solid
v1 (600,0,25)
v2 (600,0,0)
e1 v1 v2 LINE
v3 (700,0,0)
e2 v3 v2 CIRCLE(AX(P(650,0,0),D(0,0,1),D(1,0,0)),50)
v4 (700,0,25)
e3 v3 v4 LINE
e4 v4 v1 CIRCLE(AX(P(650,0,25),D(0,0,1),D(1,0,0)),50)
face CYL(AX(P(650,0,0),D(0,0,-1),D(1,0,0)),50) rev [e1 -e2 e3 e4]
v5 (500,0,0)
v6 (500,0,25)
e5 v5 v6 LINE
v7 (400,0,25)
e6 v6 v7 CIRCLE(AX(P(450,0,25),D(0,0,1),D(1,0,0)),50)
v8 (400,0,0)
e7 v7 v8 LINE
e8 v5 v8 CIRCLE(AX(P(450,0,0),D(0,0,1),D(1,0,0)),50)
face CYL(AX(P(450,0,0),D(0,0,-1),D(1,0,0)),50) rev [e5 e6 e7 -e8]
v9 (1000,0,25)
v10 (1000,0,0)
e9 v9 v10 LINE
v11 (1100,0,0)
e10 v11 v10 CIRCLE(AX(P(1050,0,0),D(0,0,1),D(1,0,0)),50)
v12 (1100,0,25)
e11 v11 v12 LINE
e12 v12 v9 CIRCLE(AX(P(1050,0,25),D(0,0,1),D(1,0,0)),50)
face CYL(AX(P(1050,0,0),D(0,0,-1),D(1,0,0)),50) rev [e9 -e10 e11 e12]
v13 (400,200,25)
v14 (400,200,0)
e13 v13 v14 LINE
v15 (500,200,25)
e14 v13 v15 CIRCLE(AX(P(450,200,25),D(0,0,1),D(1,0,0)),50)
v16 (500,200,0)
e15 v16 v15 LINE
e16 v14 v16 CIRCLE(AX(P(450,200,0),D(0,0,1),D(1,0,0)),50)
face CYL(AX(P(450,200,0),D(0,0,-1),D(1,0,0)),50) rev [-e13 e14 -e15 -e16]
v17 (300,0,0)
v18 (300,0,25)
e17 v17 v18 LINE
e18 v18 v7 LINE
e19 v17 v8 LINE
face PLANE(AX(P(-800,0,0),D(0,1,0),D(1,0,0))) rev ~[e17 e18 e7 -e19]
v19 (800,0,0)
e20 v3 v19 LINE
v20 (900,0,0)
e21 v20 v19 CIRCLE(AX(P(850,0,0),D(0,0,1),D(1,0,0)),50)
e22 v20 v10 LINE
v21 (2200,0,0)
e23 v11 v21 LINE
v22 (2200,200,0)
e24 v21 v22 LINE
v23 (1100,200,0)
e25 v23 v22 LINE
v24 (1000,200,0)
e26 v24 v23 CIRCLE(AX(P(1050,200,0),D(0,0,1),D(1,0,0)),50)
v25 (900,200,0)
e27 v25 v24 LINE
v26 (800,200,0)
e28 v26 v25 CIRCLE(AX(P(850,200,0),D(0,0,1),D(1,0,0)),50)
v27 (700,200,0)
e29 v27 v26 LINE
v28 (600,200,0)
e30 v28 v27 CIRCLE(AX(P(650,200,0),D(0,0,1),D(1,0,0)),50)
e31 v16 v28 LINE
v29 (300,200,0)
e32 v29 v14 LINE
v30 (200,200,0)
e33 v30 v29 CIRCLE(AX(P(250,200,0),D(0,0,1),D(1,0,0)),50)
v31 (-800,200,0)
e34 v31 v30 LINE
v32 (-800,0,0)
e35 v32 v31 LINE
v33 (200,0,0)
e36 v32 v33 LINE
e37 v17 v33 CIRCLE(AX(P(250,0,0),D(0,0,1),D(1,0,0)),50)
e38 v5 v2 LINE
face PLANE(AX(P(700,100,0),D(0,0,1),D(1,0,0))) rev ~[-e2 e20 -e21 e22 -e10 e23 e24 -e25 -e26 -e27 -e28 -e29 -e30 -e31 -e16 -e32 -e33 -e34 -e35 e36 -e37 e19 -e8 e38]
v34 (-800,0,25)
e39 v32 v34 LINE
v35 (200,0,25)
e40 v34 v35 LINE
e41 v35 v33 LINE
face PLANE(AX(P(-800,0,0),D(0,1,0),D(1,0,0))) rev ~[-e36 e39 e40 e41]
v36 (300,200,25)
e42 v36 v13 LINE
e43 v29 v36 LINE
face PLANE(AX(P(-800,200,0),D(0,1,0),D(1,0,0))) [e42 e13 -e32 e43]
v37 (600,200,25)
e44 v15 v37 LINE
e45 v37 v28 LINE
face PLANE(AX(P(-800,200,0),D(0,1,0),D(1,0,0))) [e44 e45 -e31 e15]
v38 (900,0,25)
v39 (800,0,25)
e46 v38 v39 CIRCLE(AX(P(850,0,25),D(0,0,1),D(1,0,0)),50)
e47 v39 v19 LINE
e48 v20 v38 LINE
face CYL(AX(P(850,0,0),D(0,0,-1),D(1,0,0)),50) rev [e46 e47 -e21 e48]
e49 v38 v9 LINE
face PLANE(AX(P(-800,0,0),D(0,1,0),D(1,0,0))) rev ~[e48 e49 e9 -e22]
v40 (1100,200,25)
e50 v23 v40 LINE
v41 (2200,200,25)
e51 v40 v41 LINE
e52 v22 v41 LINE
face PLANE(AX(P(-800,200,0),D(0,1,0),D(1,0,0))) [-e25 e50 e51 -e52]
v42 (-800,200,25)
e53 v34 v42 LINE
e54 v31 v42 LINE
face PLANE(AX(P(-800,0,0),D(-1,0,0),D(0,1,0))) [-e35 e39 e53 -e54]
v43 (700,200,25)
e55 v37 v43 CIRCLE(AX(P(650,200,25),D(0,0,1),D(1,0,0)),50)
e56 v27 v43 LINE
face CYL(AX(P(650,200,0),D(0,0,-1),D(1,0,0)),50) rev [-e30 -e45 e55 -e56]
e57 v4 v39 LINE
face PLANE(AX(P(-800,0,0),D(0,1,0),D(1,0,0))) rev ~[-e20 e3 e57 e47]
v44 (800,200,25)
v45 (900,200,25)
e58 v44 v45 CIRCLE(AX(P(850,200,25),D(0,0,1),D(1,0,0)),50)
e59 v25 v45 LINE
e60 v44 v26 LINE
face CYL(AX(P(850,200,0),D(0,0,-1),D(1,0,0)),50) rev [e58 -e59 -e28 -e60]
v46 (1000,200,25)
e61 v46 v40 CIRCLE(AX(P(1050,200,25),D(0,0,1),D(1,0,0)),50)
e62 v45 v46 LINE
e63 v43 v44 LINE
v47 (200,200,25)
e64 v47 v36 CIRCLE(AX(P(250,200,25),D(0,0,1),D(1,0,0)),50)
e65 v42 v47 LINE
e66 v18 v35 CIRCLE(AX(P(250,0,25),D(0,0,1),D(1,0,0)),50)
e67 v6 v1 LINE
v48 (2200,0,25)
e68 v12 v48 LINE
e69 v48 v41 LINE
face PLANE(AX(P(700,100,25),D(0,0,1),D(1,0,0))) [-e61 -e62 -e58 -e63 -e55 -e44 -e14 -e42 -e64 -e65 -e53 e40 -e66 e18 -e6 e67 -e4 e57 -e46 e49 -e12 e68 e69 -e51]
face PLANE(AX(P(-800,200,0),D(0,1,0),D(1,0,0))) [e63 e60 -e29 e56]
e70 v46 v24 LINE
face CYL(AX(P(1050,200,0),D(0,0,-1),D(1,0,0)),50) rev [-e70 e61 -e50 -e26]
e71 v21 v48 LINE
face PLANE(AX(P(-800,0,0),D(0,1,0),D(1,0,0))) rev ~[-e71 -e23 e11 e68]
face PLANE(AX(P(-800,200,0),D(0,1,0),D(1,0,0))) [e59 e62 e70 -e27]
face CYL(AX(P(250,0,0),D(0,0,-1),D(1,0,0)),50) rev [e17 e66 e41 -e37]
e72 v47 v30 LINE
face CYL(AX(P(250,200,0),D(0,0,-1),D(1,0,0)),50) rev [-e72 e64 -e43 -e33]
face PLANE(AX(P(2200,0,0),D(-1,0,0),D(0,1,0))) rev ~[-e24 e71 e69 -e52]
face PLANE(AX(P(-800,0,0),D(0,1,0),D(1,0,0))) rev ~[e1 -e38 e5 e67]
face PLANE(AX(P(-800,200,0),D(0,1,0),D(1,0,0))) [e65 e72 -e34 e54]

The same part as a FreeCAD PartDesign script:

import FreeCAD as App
import Part
import Sketcher


def add_polygon(sketch, points):
    """Adds a closed chain of lines whose ends are joined by coincident constraints."""
    first, n = sketch.GeometryCount, len(points)
    for a, b in zip(points, points[1:] + points[:1]):
        sketch.addGeometry(Part.LineSegment(App.Vector(*a, 0), App.Vector(*b, 0)), False)
    for i in range(n):
        sketch.addConstraint(Sketcher.Constraint("Coincident", first + i, 2, first + (i + 1) % n, 1))

doc = App.newDocument("Part")
body = doc.addObject("PartDesign::Body", "Body")

# Sketch on XY plane
sketch1 = body.newObject("Sketcher::SketchObject", "Sketch")
sketch1.AttachmentSupport = (doc.getObject("XY_Plane"), [""])
sketch1.MapMode = "FlatFace"
sketch1.addGeometry(Part.Circle(App.Vector(250, 0, 0), App.Vector(0, 0, 1), 50), False)
sketch1.addConstraint([
    Sketcher.Constraint("PointOnObject", 0, 3, -1),
    Sketcher.Constraint("Diameter", 0, 100.0),
    Sketcher.Constraint("DistanceX", -1, 1, 0, 3, 250.0),
])
pad1 = body.newObject("PartDesign::Pad", "Pad")
pad1.Profile = sketch1
pad1.Length = 25
body2 = doc.addObject("PartDesign::Body", "Body001")

# Sketch on XY plane
sketch2 = body2.newObject("Sketcher::SketchObject", "Sketch001")
sketch2.AttachmentSupport = (doc.getObject("XY_Plane001"), [""])
sketch2.MapMode = "FlatFace"
sketch2.addGeometry(Part.Circle(App.Vector(650, 0, 0), App.Vector(0, 0, 1), 50), False)
sketch2.addConstraint([
    Sketcher.Constraint("PointOnObject", 0, 3, -1),
    Sketcher.Constraint("Diameter", 0, 100.0),
    Sketcher.Constraint("DistanceX", -1, 1, 0, 3, 650.0),
])
pad2 = body2.newObject("PartDesign::Pad", "Pad001")
pad2.Profile = sketch2
pad2.Length = 25
body3 = doc.addObject("PartDesign::Body", "Body002")

# Sketch on XY plane
sketch3 = body3.newObject("Sketcher::SketchObject", "Sketch002")
sketch3.AttachmentSupport = (doc.getObject("XY_Plane002"), [""])
sketch3.MapMode = "FlatFace"
sketch3.addGeometry(Part.Circle(App.Vector(450, 0, 0), App.Vector(0, 0, 1), 50), False)
sketch3.addConstraint([
    Sketcher.Constraint("PointOnObject", 0, 3, -1),
    Sketcher.Constraint("Diameter", 0, 100.0),
    Sketcher.Constraint("DistanceX", -1, 1, 0, 3, 450.0),
])
pad3 = body3.newObject("PartDesign::Pad", "Pad002")
pad3.Profile = sketch3
pad3.Length = 25
body4 = doc.addObject("PartDesign::Body", "Body003")

# Sketch on XY plane
sketch4 = body4.newObject("Sketcher::SketchObject", "Sketch003")
sketch4.AttachmentSupport = (doc.getObject("XY_Plane003"), [""])
sketch4.MapMode = "FlatFace"
sketch4.addGeometry(Part.Circle(App.Vector(850, 0, 0), App.Vector(0, 0, 1), 50), False)
sketch4.addConstraint([
    Sketcher.Constraint("PointOnObject", 0, 3, -1),
    Sketcher.Constraint("Diameter", 0, 100.0),
    Sketcher.Constraint("DistanceX", -1, 1, 0, 3, 850.0),
])
pad4 = body4.newObject("PartDesign::Pad", "Pad003")
pad4.Profile = sketch4
pad4.Length = 25
body5 = doc.addObject("PartDesign::Body", "Body004")

# Sketch on XY plane
sketch5 = body5.newObject("Sketcher::SketchObject", "Sketch004")
sketch5.AttachmentSupport = (doc.getObject("XY_Plane004"), [""])
sketch5.MapMode = "FlatFace"
sketch5.addGeometry(Part.Circle(App.Vector(1050, 0, 0), App.Vector(0, 0, 1), 50), False)
sketch5.addConstraint([
    Sketcher.Constraint("PointOnObject", 0, 3, -1),
    Sketcher.Constraint("Diameter", 0, 100.0),
    Sketcher.Constraint("DistanceX", -1, 1, 0, 3, 1050.0),
])
pad5 = body5.newObject("PartDesign::Pad", "Pad004")
pad5.Profile = sketch5
pad5.Length = 25
body6 = doc.addObject("PartDesign::Body", "Body005")

# Sketch on XY plane
sketch6 = body6.newObject("Sketcher::SketchObject", "Sketch005")
sketch6.AttachmentSupport = (doc.getObject("XY_Plane005"), [""])
sketch6.MapMode = "FlatFace"
sketch6.addGeometry(Part.Circle(App.Vector(450, 200, 0), App.Vector(0, 0, 1), 50), False)
sketch6.addConstraint([
    Sketcher.Constraint("Diameter", 0, 100.0),
    Sketcher.Constraint("DistanceX", -1, 1, 0, 3, 450.0),
    Sketcher.Constraint("DistanceY", -1, 1, 0, 3, 200.0),
])
pad6 = body6.newObject("PartDesign::Pad", "Pad005")
pad6.Profile = sketch6
pad6.Length = 25
body7 = doc.addObject("PartDesign::Body", "Body006")

# Sketch on XY plane
sketch7 = body7.newObject("Sketcher::SketchObject", "Sketch006")
sketch7.AttachmentSupport = (doc.getObject("XY_Plane006"), [""])
sketch7.MapMode = "FlatFace"
sketch7.addGeometry(Part.Circle(App.Vector(250, 200, 0), App.Vector(0, 0, 1), 50), False)
sketch7.addConstraint([
    Sketcher.Constraint("Diameter", 0, 100.0),
    Sketcher.Constraint("DistanceX", -1, 1, 0, 3, 250.0),
    Sketcher.Constraint("DistanceY", -1, 1, 0, 3, 200.0),
])
pad7 = body7.newObject("PartDesign::Pad", "Pad006")
pad7.Profile = sketch7
pad7.Length = 25
body8 = doc.addObject("PartDesign::Body", "Body007")

# Sketch on XY plane
sketch8 = body8.newObject("Sketcher::SketchObject", "Sketch007")
sketch8.AttachmentSupport = (doc.getObject("XY_Plane007"), [""])
sketch8.MapMode = "FlatFace"
sketch8.addGeometry(Part.Circle(App.Vector(650, 200, 0), App.Vector(0, 0, 1), 50), False)
sketch8.addConstraint([
    Sketcher.Constraint("Diameter", 0, 100.0),
    Sketcher.Constraint("DistanceX", -1, 1, 0, 3, 650.0),
    Sketcher.Constraint("DistanceY", -1, 1, 0, 3, 200.0),
])
pad8 = body8.newObject("PartDesign::Pad", "Pad007")
pad8.Profile = sketch8
pad8.Length = 25
body9 = doc.addObject("PartDesign::Body", "Body008")

# Sketch on XY plane
sketch9 = body9.newObject("Sketcher::SketchObject", "Sketch008")
sketch9.AttachmentSupport = (doc.getObject("XY_Plane008"), [""])
sketch9.MapMode = "FlatFace"
sketch9.addGeometry(Part.Circle(App.Vector(850, 200, 0), App.Vector(0, 0, 1), 50), False)
sketch9.addConstraint([
    Sketcher.Constraint("Diameter", 0, 100.0),
    Sketcher.Constraint("DistanceX", -1, 1, 0, 3, 850.0),
    Sketcher.Constraint("DistanceY", -1, 1, 0, 3, 200.0),
])
pad9 = body9.newObject("PartDesign::Pad", "Pad008")
pad9.Profile = sketch9
pad9.Length = 25
body10 = doc.addObject("PartDesign::Body", "Body009")
body10.AllowCompound = True

# Sketch on XY plane
sketch10 = body10.newObject("Sketcher::SketchObject", "Sketch009")
sketch10.AttachmentSupport = (doc.getObject("XY_Plane009"), [""])
sketch10.MapMode = "FlatFace"
sketch10.addGeometry(Part.Circle(App.Vector(1050, 200, 0), App.Vector(0, 0, 1), 50), False)
sketch10.addConstraint([
    Sketcher.Constraint("Diameter", 0, 100.0),
    Sketcher.Constraint("DistanceX", -1, 1, 0, 3, 1050.0),
    Sketcher.Constraint("DistanceY", -1, 1, 0, 3, 200.0),
])
pad10 = body10.newObject("PartDesign::Pad", "Pad009")
pad10.Profile = sketch10
pad10.Length = 25
doc.recompute()

boolean = body10.newObject("PartDesign::Boolean", "Boolean")
boolean.Type = "Fuse"
boolean.addObjects([body])
doc.recompute()

boolean2 = body10.newObject("PartDesign::Boolean", "Boolean001")
boolean2.Type = "Fuse"
boolean2.addObjects([body2])
doc.recompute()

boolean3 = body10.newObject("PartDesign::Boolean", "Boolean002")
boolean3.Type = "Fuse"
boolean3.addObjects([body3])
doc.recompute()

boolean4 = body10.newObject("PartDesign::Boolean", "Boolean003")
boolean4.Type = "Fuse"
boolean4.addObjects([body4])
doc.recompute()

boolean5 = body10.newObject("PartDesign::Boolean", "Boolean004")
boolean5.Type = "Fuse"
boolean5.addObjects([body5])
doc.recompute()

boolean6 = body10.newObject("PartDesign::Boolean", "Boolean005")
boolean6.Type = "Fuse"
boolean6.addObjects([body6])
doc.recompute()

boolean7 = body10.newObject("PartDesign::Boolean", "Boolean006")
boolean7.Type = "Fuse"
boolean7.addObjects([body7])
doc.recompute()

boolean8 = body10.newObject("PartDesign::Boolean", "Boolean007")
boolean8.Type = "Fuse"
boolean8.addObjects([body8])
doc.recompute()

boolean9 = body10.newObject("PartDesign::Boolean", "Boolean008")
boolean9.Type = "Fuse"
boolean9.addObjects([body9])
body11 = doc.addObject("PartDesign::Body", "Body010")

# Sketch on XY plane
sketch11 = body11.newObject("Sketcher::SketchObject", "Sketch010")
sketch11.AttachmentSupport = (doc.getObject("XY_Plane010"), [""])
sketch11.MapMode = "FlatFace"
add_polygon(sketch11, [(-800, 200), (-800, 0), (2200, 0), (2200, 200)])  # lines 0-3
sketch11.addConstraint([
    Sketcher.Constraint("Vertical", 0),
    Sketcher.Constraint("Horizontal", 1),
    Sketcher.Constraint("Vertical", 2),
    Sketcher.Constraint("Horizontal", 3),
    Sketcher.Constraint("PointOnObject", 0, 2, -1),
    Sketcher.Constraint("DistanceX", 1, 1, 1, 2, 3000.0),
    Sketcher.Constraint("DistanceY", 0, 2, 0, 1, 200.0),
    Sketcher.Constraint("DistanceX", 0, 2, -1, 1, 800.0),
])
pad11 = body11.newObject("PartDesign::Pad", "Pad010")
pad11.Profile = sketch11
pad11.Length = 25
doc.recompute()

boolean10 = body11.newObject("PartDesign::Boolean", "Boolean009")
boolean10.Type = "Cut"
boolean10.addObjects([body10])

doc.recompute()
